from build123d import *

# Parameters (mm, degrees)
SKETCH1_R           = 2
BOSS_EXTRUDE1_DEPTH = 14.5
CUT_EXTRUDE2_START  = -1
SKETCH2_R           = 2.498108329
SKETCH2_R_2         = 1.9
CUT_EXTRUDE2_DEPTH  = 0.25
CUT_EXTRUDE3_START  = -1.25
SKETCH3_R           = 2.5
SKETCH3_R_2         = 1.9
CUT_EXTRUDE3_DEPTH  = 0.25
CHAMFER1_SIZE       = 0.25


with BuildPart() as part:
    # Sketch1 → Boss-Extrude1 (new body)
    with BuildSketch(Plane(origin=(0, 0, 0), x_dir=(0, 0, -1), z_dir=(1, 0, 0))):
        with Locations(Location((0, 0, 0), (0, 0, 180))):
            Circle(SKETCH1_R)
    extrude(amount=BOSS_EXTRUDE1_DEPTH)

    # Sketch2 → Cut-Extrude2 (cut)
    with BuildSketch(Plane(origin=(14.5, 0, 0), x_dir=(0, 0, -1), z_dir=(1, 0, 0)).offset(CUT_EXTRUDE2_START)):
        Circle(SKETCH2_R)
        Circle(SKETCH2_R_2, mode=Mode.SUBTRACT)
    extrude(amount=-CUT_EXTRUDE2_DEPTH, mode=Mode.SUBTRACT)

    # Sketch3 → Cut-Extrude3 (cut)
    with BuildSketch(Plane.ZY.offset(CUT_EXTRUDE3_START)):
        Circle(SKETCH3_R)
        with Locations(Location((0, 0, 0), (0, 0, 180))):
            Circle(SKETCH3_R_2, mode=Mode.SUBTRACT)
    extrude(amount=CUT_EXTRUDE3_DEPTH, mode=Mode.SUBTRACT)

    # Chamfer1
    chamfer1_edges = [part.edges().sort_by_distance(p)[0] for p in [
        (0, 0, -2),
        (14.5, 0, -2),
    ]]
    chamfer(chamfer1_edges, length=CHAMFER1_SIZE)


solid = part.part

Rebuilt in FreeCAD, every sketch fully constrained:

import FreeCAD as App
import Part
import Sketcher


def edges_at(feature, points):
    """Names of the edges that pass closest to the given points."""
    edges = feature.Shape.Edges
    near = lambda p: min(range(len(edges)), key=lambda i: edges[i].distToShape(Part.Vertex(*p))[0])
    return sorted({f"Edge{near(p) + 1}" for p in points})

doc = App.newDocument("Part")
body = doc.addObject("PartDesign::Body", "Body")

sketch1 = body.newObject("Sketcher::SketchObject", "Sketch")
sketch1.AttachmentSupport = (doc.getObject("YZ_Plane"), [""])
sketch1.MapMode = "FlatFace"
sketch1.addGeometry(Part.Circle(App.Vector(0, 0, 0), App.Vector(0, 0, 1), 2), False)
sketch1.addConstraint([
    Sketcher.Constraint("Coincident", 0, 3, -1, 1),
    Sketcher.Constraint("Diameter", 0, 4.0),
])
pad1 = body.newObject("PartDesign::Pad", "Pad")
pad1.Profile = sketch1
pad1.Length = 14.5

sketch2 = body.newObject("Sketcher::SketchObject", "Sketch001")
sketch2.AttachmentSupport = (doc.getObject("YZ_Plane"), [""])
sketch2.MapMode = "FlatFace"
sketch2.AttachmentOffset = App.Placement(App.Vector(0, 0, 13.5), App.Rotation())
sketch2.addGeometry([
    Part.Circle(App.Vector(0, 0, 0), App.Vector(0, 0, 1), 2.5),
    Part.Circle(App.Vector(0, 0, 0), App.Vector(0, 0, 1), 1.9),
], False)
sketch2.addConstraint([
    Sketcher.Constraint("Coincident", 0, 3, -1, 1),
    Sketcher.Constraint("Coincident", 1, 3, -1, 1),
    Sketcher.Constraint("Diameter", 1, 3.8),
    Sketcher.Constraint("Diameter", 0, 4.996217),
])
pocket1 = body.newObject("PartDesign::Pocket", "Pocket")
pocket1.Profile = sketch2
pocket1.Length = 0.25

sketch3 = body.newObject("Sketcher::SketchObject", "Sketch002")
sketch3.AttachmentSupport = (doc.getObject("YZ_Plane"), [""])
sketch3.MapMode = "FlatFace"
sketch3.AttachmentOffset = App.Placement(App.Vector(0, 0, 1.25), App.Rotation())
sketch3.addGeometry([
    Part.Circle(App.Vector(0, 0, 0), App.Vector(0, 0, 1), 2.5),
    Part.Circle(App.Vector(0, 0, 0), App.Vector(0, 0, 1), 1.9),
], False)
sketch3.addConstraint([
    Sketcher.Constraint("Coincident", 0, 3, -1, 1),
    Sketcher.Constraint("Coincident", 1, 3, -1, 1),
    Sketcher.Constraint("Diameter", 0, 5.0),
    Sketcher.Constraint("Diameter", 1, 3.8),
])
pocket2 = body.newObject("PartDesign::Pocket", "Pocket001")
pocket2.Profile = sketch3
pocket2.Length = 0.25
doc.recompute()

chamfer = body.newObject("PartDesign::Chamfer", "Chamfer")
chamfer.Base = (pocket2, edges_at(pocket2, [(0, 0, -2), (14.5, 0, -2)]))
chamfer.Size = 0.25

doc.recompute()
